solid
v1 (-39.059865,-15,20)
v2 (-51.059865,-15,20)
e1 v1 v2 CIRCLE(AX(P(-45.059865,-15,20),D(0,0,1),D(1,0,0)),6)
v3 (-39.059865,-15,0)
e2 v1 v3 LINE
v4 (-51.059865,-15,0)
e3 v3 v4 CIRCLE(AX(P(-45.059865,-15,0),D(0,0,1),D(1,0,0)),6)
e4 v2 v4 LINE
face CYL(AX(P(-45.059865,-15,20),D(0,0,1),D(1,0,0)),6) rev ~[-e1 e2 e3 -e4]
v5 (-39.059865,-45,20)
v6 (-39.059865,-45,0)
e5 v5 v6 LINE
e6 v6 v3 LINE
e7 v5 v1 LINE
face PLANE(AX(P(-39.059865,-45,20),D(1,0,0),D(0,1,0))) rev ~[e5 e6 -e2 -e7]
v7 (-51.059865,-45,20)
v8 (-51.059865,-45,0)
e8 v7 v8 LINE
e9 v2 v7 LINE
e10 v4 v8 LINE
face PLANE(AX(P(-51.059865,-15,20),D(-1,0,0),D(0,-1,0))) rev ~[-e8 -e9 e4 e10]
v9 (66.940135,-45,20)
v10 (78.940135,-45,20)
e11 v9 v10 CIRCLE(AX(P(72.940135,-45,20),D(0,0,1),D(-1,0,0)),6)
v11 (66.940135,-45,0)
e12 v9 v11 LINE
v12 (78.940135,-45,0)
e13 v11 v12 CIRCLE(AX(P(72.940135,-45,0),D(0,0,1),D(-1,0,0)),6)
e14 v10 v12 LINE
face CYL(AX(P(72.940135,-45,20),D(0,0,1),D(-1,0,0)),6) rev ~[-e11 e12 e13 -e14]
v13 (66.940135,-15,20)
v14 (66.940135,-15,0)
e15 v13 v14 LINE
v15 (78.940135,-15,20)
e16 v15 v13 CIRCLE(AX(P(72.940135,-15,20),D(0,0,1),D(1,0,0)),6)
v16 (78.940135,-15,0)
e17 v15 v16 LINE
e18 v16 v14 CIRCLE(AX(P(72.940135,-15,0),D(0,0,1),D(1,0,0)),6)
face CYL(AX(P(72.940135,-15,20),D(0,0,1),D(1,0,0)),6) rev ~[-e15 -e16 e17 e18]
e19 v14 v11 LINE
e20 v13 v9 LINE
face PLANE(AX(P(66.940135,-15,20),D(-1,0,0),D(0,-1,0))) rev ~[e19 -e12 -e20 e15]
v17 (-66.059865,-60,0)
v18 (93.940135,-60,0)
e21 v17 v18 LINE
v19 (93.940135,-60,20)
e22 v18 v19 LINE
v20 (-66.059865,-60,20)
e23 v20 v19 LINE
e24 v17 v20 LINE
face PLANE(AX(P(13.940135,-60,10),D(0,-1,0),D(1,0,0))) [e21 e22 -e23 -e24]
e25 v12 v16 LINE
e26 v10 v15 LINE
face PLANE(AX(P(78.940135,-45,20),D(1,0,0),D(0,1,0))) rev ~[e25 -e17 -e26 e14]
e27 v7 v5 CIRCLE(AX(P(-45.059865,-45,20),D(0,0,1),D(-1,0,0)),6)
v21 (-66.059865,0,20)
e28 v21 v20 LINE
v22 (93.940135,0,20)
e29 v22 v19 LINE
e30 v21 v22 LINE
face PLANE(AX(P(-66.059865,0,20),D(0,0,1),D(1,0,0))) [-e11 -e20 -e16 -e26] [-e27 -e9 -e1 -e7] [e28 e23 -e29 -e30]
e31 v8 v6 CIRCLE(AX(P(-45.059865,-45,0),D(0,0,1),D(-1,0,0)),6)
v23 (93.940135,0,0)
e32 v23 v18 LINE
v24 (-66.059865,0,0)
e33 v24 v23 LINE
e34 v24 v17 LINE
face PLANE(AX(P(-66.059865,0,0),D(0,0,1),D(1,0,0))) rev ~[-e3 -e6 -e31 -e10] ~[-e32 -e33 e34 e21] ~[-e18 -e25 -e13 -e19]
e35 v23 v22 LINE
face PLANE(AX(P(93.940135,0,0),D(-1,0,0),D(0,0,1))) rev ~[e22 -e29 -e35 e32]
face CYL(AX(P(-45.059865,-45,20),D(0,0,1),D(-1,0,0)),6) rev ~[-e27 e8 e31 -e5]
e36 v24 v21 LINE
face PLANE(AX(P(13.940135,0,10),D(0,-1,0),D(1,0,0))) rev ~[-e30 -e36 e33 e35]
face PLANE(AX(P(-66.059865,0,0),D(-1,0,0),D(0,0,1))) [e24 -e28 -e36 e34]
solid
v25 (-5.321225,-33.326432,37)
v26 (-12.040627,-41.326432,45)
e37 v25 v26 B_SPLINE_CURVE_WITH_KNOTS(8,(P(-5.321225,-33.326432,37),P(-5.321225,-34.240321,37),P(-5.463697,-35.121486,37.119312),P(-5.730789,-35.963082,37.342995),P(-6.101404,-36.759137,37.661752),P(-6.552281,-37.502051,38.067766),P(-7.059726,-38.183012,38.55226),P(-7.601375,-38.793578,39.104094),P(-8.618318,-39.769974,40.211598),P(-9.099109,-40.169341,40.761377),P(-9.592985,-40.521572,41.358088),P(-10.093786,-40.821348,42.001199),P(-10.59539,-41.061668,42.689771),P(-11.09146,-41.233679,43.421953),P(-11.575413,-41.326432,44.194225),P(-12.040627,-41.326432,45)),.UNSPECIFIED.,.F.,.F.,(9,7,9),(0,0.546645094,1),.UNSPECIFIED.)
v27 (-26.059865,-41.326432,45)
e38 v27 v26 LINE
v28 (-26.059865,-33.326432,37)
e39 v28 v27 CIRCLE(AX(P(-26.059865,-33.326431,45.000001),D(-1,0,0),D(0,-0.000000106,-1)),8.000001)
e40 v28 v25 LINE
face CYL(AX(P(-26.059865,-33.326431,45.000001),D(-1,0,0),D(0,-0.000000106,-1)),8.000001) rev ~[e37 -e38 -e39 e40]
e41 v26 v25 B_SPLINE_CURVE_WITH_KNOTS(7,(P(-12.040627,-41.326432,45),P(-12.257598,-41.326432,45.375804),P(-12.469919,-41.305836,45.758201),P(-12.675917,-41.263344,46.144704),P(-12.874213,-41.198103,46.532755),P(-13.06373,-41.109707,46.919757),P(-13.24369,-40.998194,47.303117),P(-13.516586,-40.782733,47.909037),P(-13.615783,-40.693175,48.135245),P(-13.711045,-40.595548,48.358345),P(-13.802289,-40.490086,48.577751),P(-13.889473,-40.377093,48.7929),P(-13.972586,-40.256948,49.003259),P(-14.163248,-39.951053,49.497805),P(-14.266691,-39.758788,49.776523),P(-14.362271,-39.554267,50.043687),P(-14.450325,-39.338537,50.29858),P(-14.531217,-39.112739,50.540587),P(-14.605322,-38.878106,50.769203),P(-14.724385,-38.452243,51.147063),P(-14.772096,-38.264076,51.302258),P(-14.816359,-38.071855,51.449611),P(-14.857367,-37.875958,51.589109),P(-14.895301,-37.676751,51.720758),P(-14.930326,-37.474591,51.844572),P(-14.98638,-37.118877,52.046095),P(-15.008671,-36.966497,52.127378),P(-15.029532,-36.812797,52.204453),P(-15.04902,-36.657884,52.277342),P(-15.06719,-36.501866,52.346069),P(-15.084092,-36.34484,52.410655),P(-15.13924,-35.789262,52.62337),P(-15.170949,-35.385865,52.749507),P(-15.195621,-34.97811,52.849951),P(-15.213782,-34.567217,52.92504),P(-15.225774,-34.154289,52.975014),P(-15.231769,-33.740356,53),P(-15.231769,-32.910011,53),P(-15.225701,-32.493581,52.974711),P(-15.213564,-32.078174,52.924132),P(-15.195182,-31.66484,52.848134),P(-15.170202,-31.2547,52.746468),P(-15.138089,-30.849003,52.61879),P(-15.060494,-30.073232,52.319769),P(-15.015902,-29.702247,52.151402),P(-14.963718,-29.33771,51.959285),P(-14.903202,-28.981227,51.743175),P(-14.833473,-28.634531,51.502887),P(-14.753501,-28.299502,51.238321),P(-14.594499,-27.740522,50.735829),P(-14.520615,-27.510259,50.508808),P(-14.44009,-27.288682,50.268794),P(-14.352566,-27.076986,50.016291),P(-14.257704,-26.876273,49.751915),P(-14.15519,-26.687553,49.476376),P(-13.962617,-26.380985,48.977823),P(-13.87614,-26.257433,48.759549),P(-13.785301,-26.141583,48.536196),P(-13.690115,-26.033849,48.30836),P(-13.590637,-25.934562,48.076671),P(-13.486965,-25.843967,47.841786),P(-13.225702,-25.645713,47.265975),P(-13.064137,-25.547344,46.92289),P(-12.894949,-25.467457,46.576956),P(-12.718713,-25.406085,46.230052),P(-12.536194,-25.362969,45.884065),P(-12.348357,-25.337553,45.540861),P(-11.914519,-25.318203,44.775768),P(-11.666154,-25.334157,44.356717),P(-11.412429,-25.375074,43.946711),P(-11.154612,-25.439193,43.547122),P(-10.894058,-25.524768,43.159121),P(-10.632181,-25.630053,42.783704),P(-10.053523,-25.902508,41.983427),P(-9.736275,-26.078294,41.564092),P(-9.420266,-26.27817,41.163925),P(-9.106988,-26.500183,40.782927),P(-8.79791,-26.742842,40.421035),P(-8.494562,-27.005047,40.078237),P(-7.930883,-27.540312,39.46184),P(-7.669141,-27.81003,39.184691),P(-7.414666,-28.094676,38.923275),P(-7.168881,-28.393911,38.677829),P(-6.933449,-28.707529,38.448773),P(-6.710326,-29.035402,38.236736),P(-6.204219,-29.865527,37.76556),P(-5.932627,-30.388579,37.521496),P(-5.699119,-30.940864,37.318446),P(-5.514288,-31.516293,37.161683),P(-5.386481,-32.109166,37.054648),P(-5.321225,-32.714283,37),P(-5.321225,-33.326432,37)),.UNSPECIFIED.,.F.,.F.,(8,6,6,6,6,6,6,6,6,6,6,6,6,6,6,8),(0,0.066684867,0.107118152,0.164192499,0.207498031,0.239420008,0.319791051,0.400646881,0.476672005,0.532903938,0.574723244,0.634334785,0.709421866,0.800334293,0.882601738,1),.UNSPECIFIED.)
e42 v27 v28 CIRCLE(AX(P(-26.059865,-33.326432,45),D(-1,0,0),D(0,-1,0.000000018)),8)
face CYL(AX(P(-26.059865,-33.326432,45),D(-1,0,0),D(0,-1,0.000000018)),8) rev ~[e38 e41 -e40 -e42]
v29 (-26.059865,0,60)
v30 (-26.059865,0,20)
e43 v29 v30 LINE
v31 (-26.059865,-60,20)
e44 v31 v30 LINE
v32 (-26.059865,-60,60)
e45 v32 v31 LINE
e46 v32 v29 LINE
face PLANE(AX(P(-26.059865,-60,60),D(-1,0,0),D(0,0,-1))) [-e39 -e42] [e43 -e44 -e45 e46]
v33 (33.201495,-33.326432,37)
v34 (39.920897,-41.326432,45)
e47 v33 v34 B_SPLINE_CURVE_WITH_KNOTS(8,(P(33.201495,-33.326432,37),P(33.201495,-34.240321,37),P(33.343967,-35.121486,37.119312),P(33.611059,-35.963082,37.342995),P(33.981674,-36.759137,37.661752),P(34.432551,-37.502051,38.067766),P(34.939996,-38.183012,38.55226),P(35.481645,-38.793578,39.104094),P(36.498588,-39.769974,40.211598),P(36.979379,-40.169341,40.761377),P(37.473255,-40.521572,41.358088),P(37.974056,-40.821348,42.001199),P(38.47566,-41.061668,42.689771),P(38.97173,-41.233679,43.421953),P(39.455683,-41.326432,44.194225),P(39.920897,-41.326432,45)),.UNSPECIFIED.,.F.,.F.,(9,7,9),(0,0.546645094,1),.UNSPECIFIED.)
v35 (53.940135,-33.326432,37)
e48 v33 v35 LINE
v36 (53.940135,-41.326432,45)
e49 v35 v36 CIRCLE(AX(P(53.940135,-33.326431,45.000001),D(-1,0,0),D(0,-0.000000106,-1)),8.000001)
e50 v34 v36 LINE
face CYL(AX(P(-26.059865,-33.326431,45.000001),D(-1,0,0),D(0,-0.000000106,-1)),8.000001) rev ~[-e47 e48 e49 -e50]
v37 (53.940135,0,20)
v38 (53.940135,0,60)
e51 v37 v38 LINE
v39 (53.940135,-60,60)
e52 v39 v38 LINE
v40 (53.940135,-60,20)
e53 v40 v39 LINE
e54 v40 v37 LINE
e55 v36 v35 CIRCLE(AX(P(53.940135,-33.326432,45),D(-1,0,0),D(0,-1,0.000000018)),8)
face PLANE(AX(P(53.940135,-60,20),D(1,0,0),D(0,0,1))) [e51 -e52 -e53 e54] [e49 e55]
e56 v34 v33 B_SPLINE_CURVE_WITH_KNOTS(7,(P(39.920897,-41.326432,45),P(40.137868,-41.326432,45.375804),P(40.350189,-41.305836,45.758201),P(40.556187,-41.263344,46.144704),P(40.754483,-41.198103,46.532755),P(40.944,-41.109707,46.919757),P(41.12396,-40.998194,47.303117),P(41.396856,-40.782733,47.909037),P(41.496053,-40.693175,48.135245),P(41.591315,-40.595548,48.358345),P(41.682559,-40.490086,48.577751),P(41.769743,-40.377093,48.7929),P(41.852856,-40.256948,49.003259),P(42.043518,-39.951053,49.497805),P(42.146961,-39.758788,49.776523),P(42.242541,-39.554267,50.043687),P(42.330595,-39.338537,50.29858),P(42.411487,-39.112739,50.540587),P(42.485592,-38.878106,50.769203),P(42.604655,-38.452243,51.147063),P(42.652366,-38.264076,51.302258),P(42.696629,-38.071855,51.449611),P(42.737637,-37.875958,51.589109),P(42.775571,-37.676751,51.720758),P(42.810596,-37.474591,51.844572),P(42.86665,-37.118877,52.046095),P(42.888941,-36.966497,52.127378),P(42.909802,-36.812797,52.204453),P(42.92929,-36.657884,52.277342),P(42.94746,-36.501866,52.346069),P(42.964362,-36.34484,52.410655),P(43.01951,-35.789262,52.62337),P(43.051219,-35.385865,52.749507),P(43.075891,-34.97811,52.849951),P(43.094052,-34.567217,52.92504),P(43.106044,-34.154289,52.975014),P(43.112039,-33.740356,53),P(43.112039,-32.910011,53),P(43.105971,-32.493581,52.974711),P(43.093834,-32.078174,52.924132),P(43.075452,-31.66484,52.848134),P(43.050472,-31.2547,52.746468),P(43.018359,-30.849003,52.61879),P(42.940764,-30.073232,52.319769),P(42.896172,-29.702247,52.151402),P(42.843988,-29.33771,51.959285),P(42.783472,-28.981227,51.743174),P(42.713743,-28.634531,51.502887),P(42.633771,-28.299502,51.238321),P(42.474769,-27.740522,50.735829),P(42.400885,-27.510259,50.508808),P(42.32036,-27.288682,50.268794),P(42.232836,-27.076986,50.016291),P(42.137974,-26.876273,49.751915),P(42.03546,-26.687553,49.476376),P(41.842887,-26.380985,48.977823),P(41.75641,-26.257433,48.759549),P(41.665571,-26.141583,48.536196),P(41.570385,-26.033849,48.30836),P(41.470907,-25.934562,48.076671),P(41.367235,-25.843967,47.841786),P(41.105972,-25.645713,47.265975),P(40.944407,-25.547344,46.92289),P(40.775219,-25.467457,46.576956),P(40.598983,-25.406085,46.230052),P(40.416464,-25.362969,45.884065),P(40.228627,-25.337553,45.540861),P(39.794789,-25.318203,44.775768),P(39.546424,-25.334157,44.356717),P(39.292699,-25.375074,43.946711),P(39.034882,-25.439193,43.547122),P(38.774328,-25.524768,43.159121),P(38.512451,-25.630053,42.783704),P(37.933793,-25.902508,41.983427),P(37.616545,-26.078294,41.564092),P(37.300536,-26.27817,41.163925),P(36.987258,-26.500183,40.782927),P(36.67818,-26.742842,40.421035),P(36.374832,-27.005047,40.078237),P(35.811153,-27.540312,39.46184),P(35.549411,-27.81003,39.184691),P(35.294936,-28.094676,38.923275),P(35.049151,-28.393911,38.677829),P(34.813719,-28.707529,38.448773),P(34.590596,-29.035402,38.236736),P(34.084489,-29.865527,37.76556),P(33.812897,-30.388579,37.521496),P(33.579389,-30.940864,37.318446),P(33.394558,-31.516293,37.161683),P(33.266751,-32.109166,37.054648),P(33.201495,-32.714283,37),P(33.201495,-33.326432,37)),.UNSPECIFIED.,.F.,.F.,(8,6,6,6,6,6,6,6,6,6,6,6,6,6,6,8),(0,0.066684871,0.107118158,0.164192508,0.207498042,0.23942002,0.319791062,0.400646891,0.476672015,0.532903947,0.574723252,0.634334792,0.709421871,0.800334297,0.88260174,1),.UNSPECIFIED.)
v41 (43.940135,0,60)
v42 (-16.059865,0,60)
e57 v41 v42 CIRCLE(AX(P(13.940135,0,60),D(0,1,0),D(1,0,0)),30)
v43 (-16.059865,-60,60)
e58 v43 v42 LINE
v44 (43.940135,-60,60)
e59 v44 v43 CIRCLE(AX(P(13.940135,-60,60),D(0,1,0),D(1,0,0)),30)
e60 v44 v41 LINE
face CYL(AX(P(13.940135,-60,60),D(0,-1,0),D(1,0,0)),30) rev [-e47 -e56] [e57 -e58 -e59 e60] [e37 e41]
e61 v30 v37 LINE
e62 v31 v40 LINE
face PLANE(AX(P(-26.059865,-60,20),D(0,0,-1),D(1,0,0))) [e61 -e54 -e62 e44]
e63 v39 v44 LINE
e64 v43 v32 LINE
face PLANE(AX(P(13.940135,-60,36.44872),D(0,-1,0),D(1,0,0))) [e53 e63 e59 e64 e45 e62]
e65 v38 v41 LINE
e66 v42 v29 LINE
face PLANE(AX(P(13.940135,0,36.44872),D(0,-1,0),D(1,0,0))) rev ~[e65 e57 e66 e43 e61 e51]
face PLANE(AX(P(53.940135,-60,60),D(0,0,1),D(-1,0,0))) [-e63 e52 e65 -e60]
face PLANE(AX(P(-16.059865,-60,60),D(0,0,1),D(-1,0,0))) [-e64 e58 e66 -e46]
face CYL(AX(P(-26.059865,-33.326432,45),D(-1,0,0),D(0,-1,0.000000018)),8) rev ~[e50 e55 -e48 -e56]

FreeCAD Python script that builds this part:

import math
import FreeCAD as App
import Part
import Sketcher
Q = App.Units.Quantity


def add_polygon(sketch, points):
    """Adds a closed chain of lines whose ends are joined by coincident constraints."""
    first, n = sketch.GeometryCount, len(points)
    for a, b in zip(points, points[1:] + points[:1]):
        sketch.addGeometry(Part.LineSegment(App.Vector(*a, 0), App.Vector(*b, 0)), False)
    for i in range(n):
        sketch.addConstraint(Sketcher.Constraint("Coincident", first + i, 2, first + (i + 1) % n, 1))

doc = App.newDocument("Part")
body = doc.addObject("PartDesign::Body", "Body")

# Sketch on XZ plane
sketch1 = doc.addObject("Sketcher::SketchObject", "Sketch")
body.addObject(sketch1)
sketch1.AttachmentSupport = (doc.XZ_Plane, [""])
sketch1.MapMode = "FlatFace"
add_polygon(sketch1, [(-66, 20), (-66, 0), (94, 0), (94, 20)])  # lines 0-3
sketch1.addConstraint(Sketcher.Constraint("Vertical", 0))
sketch1.addConstraint(Sketcher.Constraint("Horizontal", 1))
sketch1.addConstraint(Sketcher.Constraint("Vertical", 2))
sketch1.addConstraint(Sketcher.Constraint("Horizontal", 3))
sketch1.addConstraint(Sketcher.Constraint("PointOnObject", 0, 2, -1))
sketch1.addConstraint(Sketcher.Constraint("DistanceX", 1, 1, 1, 2, Q("160 mm")))
sketch1.addConstraint(Sketcher.Constraint("DistanceY", 0, 2, 0, 1, Q("20 mm")))
sketch1.addConstraint(Sketcher.Constraint("DistanceX", 0, 2, -1, 1, Q("66.059865 mm")))
pad1 = doc.addObject("PartDesign::Pad", "Pad")
body.addObject(pad1)
pad1.Profile = sketch1
pad1.Length = 60

# Sketch on XY plane
sketch2 = doc.addObject("Sketcher::SketchObject", "Sketch001")
body.addObject(sketch2)
sketch2.AttachmentSupport = (doc.XY_Plane, [""])
sketch2.MapMode = "FlatFace"
sketch2.AttachmentOffset = App.Placement(App.Vector(0, 0, 20), App.Rotation())
sketch2.addGeometry(Part.LineSegment(App.Vector(79, -45, 0), App.Vector(79, -15, 0)), False)
sketch2.addGeometry(Part.ArcOfCircle(Part.Circle(App.Vector(73, -15, 0), App.Vector(0, 0, 1), 6), math.radians(0), math.radians(180)), False)
sketch2.addGeometry(Part.LineSegment(App.Vector(67, -15, 0), App.Vector(67, -45, 0)), False)
sketch2.addGeometry(Part.ArcOfCircle(Part.Circle(App.Vector(73, -45, 0), App.Vector(0, 0, 1), 6), math.radians(180), math.radians(360)), False)
sketch2.addGeometry(Part.LineSegment(App.Vector(-51, -15, 0), App.Vector(-51, -45, 0)), False)
sketch2.addGeometry(Part.ArcOfCircle(Part.Circle(App.Vector(-45, -45, 0), App.Vector(0, 0, 1), 6), math.radians(180), math.radians(360)), False)
sketch2.addGeometry(Part.LineSegment(App.Vector(-39, -45, 0), App.Vector(-39, -15, 0)), False)
sketch2.addGeometry(Part.ArcOfCircle(Part.Circle(App.Vector(-45, -15, 0), App.Vector(0, 0, 1), 6), math.radians(0), math.radians(180)), False)
sketch2.addConstraint(Sketcher.Constraint("Tangent", 0, 2, 1, 1))
sketch2.addConstraint(Sketcher.Constraint("Tangent", 1, 2, 2, 1))
sketch2.addConstraint(Sketcher.Constraint("Tangent", 2, 2, 3, 1))
sketch2.addConstraint(Sketcher.Constraint("Tangent", 3, 2, 0, 1))
sketch2.addConstraint(Sketcher.Constraint("Tangent", 4, 2, 5, 1))
sketch2.addConstraint(Sketcher.Constraint("Tangent", 5, 2, 6, 1))
sketch2.addConstraint(Sketcher.Constraint("Tangent", 6, 2, 7, 1))
sketch2.addConstraint(Sketcher.Constraint("Tangent", 7, 2, 4, 1))
sketch2.addConstraint(Sketcher.Constraint("Vertical", 0))
sketch2.addConstraint(Sketcher.Constraint("Vertical", 2))
sketch2.addConstraint(Sketcher.Constraint("Vertical", 4))
sketch2.addConstraint(Sketcher.Constraint("Vertical", 6))
sketch2.addConstraint(Sketcher.Constraint("Equal", 3, 5))
sketch2.addConstraint(Sketcher.Constraint("Horizontal", 3, 3, 5, 3))
sketch2.addConstraint(Sketcher.Constraint("Horizontal", 1, 3, 7, 3))
sketch2.addConstraint(Sketcher.Constraint("Radius", 1, Q("6 mm")))
sketch2.addConstraint(Sketcher.Constraint("DistanceY", 0, 1, 0, 2, Q("30 mm")))
sketch2.addConstraint(Sketcher.Constraint("DistanceY", 1, 3, -1, 1, Q("15 mm")))
sketch2.addConstraint(Sketcher.Constraint("DistanceX", 5, 3, 3, 3, Q("118 mm")))
sketch2.addConstraint(Sketcher.Constraint("DistanceX", -1, 1, 1, 3, Q("72.940135 mm")))
pocket1 = doc.addObject("PartDesign::Pocket", "Pocket")
body.addObject(pocket1)
pocket1.Profile = sketch2
pocket1.Length = 20
body2 = doc.addObject("PartDesign::Body", "Body001")

# Sketch on XZ plane
sketch3 = doc.addObject("Sketcher::SketchObject", "Sketch002")
body2.addObject(sketch3)
sketch3.AttachmentSupport = (doc.getObject("XZ_Plane001"), [""])
sketch3.MapMode = "FlatFace"
sketch3.AttachmentOffset = App.Placement(App.Vector(0, 0, 60), App.Rotation())
sketch3.addGeometry(Part.LineSegment(App.Vector(-26, 60, 0), App.Vector(-26, 20, 0)), False)
sketch3.addGeometry(Part.LineSegment(App.Vector(-26, 20, 0), App.Vector(54, 20, 0)), False)
sketch3.addGeometry(Part.LineSegment(App.Vector(54, 20, 0), App.Vector(54, 60, 0)), False)
sketch3.addGeometry(Part.LineSegment(App.Vector(54, 60, 0), App.Vector(44, 60, 0)), False)
sketch3.addGeometry(Part.ArcOfCircle(Part.Circle(App.Vector(14, 60, 0), App.Vector(0, 0, 1), 30), math.radians(180), math.radians(360)), False)
sketch3.addGeometry(Part.LineSegment(App.Vector(-16, 60, 0), App.Vector(-26, 60, 0)), False)
sketch3.addConstraint(Sketcher.Constraint("Coincident", 0, 2, 1, 1))
sketch3.addConstraint(Sketcher.Constraint("Coincident", 1, 2, 2, 1))
sketch3.addConstraint(Sketcher.Constraint("Coincident", 2, 2, 3, 1))
sketch3.addConstraint(Sketcher.Constraint("Coincident", 3, 2, 4, 2))
sketch3.addConstraint(Sketcher.Constraint("Coincident", 4, 1, 5, 1))
sketch3.addConstraint(Sketcher.Constraint("Coincident", 5, 2, 0, 1))
sketch3.addConstraint(Sketcher.Constraint("Vertical", 0))
sketch3.addConstraint(Sketcher.Constraint("Horizontal", 1))
sketch3.addConstraint(Sketcher.Constraint("Vertical", 2))
sketch3.addConstraint(Sketcher.Constraint("Horizontal", 3))
sketch3.addConstraint(Sketcher.Constraint("Horizontal", 5))
sketch3.addConstraint(Sketcher.Constraint("Horizontal", 4, 3, 2, 2))
sketch3.addConstraint(Sketcher.Constraint("Horizontal", 3, 2, 4, 1))
sketch3.addConstraint(Sketcher.Constraint("Equal", 3, 5))
sketch3.addConstraint(Sketcher.Constraint("Radius", 4, Q("30 mm")))
sketch3.addConstraint(Sketcher.Constraint("DistanceX", 1, 1, 1, 2, Q("80 mm")))
sketch3.addConstraint(Sketcher.Constraint("DistanceY", 0, 2, 0, 1, Q("40 mm")))
sketch3.addConstraint(Sketcher.Constraint("DistanceY", -1, 1, 4, 3, Q("60 mm")))
sketch3.addConstraint(Sketcher.Constraint("DistanceX", -1, 1, 4, 3, Q("13.940135 mm")))
pad2 = doc.addObject("PartDesign::Pad", "Pad001")
body2.addObject(pad2)
pad2.Profile = sketch3
pad2.Length = 60
pad2.Reversed = True

# Sketch on YZ plane
sketch4 = doc.addObject("Sketcher::SketchObject", "Sketch003")
body2.addObject(sketch4)
sketch4.AttachmentSupport = (doc.getObject("YZ_Plane001"), [""])
sketch4.MapMode = "FlatFace"
sketch4.AttachmentOffset = App.Placement(App.Vector(0, 0, -26.059865), App.Rotation())
sketch4.addGeometry(Part.ArcOfCircle(Part.Circle(App.Vector(-33, 45, 0), App.Vector(0, 0, 1), 8), math.radians(-180), math.radians(-90)), False)
sketch4.addGeometry(Part.ArcOfCircle(Part.Circle(App.Vector(-33, 45, 0), App.Vector(0, 0, 1), 8), math.radians(-90), math.radians(180)), False)
sketch4.addConstraint(Sketcher.Constraint("Tangent", 0, 1, 1, 2))
sketch4.addConstraint(Sketcher.Constraint("Coincident", 1, 1, 0, 2))
sketch4.addConstraint(Sketcher.Constraint("Horizontal", 1, 3, 0, 1))
sketch4.addConstraint(Sketcher.Constraint("Vertical", 0, 3, 1, 1))
sketch4.addConstraint(Sketcher.Constraint("Radius", 0, Q("8.000001 mm")))
sketch4.addConstraint(Sketcher.Constraint("DistanceY", -1, 1, 0, 3, Q("45.000001 mm")))
sketch4.addConstraint(Sketcher.Constraint("DistanceX", 0, 3, -1, 1, Q("33.326431 mm")))
pocket2 = doc.addObject("PartDesign::Pocket", "Pocket001")
body2.addObject(pocket2)
pocket2.Profile = sketch4
pocket2.Length = 80
pocket2.Reversed = True

doc.recompute()
